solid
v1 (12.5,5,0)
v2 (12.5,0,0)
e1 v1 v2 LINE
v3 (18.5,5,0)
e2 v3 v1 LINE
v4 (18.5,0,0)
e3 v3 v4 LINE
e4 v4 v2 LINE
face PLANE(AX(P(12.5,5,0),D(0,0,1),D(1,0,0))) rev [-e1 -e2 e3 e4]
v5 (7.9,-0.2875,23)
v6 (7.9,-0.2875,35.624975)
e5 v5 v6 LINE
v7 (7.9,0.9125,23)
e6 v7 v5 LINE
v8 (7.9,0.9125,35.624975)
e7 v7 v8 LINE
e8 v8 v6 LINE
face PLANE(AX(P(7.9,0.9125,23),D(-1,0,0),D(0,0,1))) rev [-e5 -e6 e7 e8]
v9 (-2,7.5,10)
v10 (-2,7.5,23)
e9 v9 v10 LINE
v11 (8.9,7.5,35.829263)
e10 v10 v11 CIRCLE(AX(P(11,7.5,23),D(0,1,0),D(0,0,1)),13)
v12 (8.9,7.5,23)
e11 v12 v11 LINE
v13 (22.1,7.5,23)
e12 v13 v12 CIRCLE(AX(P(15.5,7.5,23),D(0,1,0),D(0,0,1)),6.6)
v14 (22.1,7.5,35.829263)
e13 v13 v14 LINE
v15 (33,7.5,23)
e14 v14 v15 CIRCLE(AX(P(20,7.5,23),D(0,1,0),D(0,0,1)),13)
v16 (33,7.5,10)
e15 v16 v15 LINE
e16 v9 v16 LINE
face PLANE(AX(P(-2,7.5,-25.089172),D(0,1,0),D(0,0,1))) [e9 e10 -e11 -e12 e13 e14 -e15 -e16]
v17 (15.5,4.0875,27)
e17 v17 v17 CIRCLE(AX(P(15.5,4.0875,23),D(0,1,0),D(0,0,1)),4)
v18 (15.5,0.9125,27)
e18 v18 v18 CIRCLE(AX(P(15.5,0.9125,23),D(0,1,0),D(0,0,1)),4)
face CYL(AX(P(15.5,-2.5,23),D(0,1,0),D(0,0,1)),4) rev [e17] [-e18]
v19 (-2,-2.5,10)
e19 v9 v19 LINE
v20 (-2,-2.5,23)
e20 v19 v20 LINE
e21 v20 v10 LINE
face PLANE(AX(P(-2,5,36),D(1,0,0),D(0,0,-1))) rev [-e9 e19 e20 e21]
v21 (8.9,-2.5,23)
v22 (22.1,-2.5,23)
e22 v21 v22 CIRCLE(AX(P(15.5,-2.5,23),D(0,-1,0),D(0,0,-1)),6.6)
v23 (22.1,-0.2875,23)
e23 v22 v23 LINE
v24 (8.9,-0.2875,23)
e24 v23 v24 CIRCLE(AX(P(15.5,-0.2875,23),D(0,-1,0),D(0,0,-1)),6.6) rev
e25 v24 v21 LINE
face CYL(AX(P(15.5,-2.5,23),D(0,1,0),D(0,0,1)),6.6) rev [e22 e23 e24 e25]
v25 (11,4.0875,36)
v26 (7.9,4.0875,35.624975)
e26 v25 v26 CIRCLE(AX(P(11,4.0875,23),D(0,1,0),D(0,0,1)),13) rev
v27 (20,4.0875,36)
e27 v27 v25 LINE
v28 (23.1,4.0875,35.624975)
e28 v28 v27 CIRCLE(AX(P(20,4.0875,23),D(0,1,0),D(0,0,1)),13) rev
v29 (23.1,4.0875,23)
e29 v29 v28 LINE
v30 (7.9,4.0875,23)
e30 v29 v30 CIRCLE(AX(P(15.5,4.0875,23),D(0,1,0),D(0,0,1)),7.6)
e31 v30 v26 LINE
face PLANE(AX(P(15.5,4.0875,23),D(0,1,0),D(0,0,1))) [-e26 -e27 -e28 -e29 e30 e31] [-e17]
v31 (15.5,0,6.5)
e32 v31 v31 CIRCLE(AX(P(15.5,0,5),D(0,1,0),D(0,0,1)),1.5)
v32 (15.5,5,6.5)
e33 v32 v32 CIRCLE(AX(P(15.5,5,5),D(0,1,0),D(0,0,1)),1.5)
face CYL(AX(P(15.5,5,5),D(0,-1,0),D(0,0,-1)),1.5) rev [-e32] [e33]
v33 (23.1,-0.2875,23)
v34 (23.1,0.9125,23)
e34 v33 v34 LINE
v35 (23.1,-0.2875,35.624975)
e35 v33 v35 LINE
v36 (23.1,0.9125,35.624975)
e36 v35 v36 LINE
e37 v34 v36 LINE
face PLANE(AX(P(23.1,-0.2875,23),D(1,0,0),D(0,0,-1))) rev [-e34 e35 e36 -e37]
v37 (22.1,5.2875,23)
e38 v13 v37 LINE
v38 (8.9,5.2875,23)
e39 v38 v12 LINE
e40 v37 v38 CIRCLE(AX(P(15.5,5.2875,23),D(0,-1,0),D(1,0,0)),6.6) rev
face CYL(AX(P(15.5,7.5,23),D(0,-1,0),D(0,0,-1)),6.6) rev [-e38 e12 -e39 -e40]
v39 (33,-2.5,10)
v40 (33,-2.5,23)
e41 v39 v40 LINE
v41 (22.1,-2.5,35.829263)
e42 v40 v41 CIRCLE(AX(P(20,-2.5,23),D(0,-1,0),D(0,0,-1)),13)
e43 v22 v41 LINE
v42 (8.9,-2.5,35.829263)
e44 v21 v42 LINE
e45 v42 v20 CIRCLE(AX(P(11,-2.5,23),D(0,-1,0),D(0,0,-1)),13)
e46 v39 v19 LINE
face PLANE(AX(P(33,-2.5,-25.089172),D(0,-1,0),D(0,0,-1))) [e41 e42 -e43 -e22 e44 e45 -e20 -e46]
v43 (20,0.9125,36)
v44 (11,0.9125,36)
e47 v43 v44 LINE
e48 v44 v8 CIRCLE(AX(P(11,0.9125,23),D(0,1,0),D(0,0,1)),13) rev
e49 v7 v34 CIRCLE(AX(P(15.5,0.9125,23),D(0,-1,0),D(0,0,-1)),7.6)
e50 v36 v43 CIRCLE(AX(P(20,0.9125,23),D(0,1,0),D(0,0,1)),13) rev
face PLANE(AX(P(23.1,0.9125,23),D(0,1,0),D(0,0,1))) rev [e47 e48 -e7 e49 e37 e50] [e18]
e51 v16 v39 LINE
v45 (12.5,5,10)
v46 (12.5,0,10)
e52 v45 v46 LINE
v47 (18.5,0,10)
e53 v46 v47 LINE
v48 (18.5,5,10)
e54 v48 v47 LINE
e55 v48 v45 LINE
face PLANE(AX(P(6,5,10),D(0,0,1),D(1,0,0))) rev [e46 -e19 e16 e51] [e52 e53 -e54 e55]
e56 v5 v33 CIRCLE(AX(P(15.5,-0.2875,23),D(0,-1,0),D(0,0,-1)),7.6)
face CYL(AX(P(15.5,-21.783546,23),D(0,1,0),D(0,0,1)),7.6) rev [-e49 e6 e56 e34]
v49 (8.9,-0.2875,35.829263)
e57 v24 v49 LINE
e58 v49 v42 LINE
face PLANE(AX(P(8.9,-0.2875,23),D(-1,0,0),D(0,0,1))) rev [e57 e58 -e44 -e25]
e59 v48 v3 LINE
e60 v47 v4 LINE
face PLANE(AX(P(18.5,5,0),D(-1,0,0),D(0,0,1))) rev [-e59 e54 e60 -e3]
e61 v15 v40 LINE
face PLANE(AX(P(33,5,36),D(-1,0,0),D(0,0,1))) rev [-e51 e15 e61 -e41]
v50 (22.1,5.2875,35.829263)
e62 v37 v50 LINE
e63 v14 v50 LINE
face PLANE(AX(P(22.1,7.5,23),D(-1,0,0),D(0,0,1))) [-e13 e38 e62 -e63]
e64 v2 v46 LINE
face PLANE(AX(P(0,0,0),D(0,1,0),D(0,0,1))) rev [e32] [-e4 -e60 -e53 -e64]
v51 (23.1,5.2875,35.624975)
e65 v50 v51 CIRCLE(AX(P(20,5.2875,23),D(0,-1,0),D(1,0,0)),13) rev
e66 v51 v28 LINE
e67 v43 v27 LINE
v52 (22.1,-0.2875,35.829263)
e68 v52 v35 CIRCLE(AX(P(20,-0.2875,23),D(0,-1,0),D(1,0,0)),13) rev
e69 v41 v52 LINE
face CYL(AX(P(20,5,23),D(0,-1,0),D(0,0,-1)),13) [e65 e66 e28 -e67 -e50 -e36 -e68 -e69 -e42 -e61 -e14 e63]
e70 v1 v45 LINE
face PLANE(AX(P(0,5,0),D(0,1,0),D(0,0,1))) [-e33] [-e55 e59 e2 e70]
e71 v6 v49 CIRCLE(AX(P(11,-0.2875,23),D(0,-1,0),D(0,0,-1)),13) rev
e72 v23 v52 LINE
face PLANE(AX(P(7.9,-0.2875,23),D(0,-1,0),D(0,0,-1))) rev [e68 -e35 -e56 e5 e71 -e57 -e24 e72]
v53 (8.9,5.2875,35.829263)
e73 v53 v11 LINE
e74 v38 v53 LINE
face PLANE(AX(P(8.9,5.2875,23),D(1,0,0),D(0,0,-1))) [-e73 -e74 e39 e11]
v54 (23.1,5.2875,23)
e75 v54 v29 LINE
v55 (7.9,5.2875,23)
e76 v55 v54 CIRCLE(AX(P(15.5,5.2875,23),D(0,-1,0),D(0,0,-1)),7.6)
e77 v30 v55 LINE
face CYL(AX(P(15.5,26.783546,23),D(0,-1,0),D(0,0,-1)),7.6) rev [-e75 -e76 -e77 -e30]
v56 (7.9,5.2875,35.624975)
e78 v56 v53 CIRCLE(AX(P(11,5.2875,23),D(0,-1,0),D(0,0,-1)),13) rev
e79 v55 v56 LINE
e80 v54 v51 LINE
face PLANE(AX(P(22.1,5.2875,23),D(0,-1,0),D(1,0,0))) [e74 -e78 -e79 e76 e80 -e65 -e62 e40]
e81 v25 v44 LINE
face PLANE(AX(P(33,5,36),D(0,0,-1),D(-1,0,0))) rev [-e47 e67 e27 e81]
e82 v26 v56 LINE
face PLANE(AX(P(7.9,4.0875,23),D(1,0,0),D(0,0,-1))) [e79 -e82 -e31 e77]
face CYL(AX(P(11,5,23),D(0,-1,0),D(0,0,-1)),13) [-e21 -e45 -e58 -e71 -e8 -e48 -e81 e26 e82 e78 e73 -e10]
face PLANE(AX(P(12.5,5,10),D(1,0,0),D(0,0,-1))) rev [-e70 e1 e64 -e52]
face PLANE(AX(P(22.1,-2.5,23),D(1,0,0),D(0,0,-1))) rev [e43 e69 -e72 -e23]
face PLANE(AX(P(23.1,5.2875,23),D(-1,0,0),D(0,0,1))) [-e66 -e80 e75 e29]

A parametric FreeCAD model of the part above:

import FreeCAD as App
import Part
import Sketcher
from FreeCAD import Vector
Q = App.Units.Quantity


def edges_at(feature, points):
    """Names of the edges that pass closest to the given points."""
    edges = feature.Shape.Edges
    near = lambda p: min(range(len(edges)), key=lambda i: edges[i].distToShape(Part.Vertex(*p))[0])
    return sorted({f"Edge{near(p) + 1}" for p in points})


def add_polygon(sketch, points):
    """Adds a closed chain of lines whose ends are joined by coincident constraints."""
    first, n = sketch.GeometryCount, len(points)
    for a, b in zip(points, points[1:] + points[:1]):
        sketch.addGeometry(Part.LineSegment(App.Vector(*a, 0), App.Vector(*b, 0)), False)
    for i in range(n):
        sketch.addConstraint(Sketcher.Constraint("Coincident", first + i, 2, first + (i + 1) % n, 1))

doc = App.newDocument("Part")
body = doc.addObject("PartDesign::Body", "Body")

sketch1 = body.newObject("Sketcher::SketchObject", "Sketch")
sketch1.AttachmentSupport = (doc.getObject("XZ_Plane"), [""])
sketch1.MapMode = "FlatFace"
add_polygon(sketch1, [(12.5, 10), (-2, 10), (-2, 36), (33, 36), (33, 10), (18.5, 10), (18.5, 0), (12.5, 0)])
sketch1.addGeometry(Part.Circle(Vector(15.5, 5, 0), Vector(0, 0, 1), 1.5), False)
sketch1.addConstraint([
    Sketcher.Constraint("Horizontal", 0),
    Sketcher.Constraint("Vertical", 1),
    Sketcher.Constraint("Horizontal", 2),
    Sketcher.Constraint("Vertical", 3),
    Sketcher.Constraint("Horizontal", 4),
    Sketcher.Constraint("Vertical", 5),
    Sketcher.Constraint("Horizontal", 6),
    Sketcher.Constraint("Vertical", 7),
    Sketcher.Constraint("PointOnObject", 5, 2, -1),
    Sketcher.Constraint("Horizontal", 0, 2, 3, 2),
    Sketcher.Constraint("Equal", 0, 4),
    Sketcher.Constraint("Diameter", 8, Q("3 mm")),
    Sketcher.Constraint("DistanceX", 2, 1, 2, 2, Q("35 mm")),
    Sketcher.Constraint("DistanceX", 6, 2, 6, 1, Q("6 mm")),
    Sketcher.Constraint("DistanceY", 1, 1, 1, 2, Q("26 mm")),
    Sketcher.Constraint("DistanceY", 5, 2, 5, 1, Q("10 mm")),
    Sketcher.Constraint("DistanceY", -1, 1, 8, 3, Q("5 mm")),
    Sketcher.Constraint("DistanceX", 0, 2, -1, 1, Q("2 mm")),
    Sketcher.Constraint("DistanceX", 8, 3, 4, 2, Q("3 mm")),
])
pad1 = body.newObject("PartDesign::Pad", "Pad")
pad1.Profile = sketch1
pad1.Length = 5
pad1.Reversed = True

sketch2 = body.newObject("Sketcher::SketchObject", "Sketch001")
sketch2.AttachmentSupport = (doc.getObject("XY_Plane"), [""])
sketch2.MapMode = "FlatFace"
sketch2.AttachmentOffset = App.Placement(Vector(0, 0, 36), App.Rotation())
add_polygon(sketch2, [(-2, 7.5), (-2, 5), (33, 5), (33, 7.5)])
add_polygon(sketch2, [(-2, 0), (-2, -2.5), (33, -2.5), (33, 0)])
sketch2.addConstraint([
    Sketcher.Constraint("Vertical", 0),
    Sketcher.Constraint("Horizontal", 1),
    Sketcher.Constraint("Vertical", 2),
    Sketcher.Constraint("Horizontal", 3),
    Sketcher.Constraint("Vertical", 4),
    Sketcher.Constraint("Horizontal", 5),
    Sketcher.Constraint("Vertical", 6),
    Sketcher.Constraint("Horizontal", 7),
    Sketcher.Constraint("PointOnObject", 6, 2, -1),
    Sketcher.Constraint("Vertical", 3, 2, 4, 2),
    Sketcher.Constraint("Vertical", 2, 2, 5, 2),
    Sketcher.Constraint("Equal", 2, 4),
    Sketcher.Constraint("DistanceX", 1, 1, 1, 2, Q("35 mm")),
    Sketcher.Constraint("DistanceY", 0, 2, 0, 1, Q("2.5 mm")),
    Sketcher.Constraint("DistanceX", 0, 2, -1, 1, Q("2 mm")),
    Sketcher.Constraint("DistanceY", -1, 1, 0, 2, Q("5 mm")),
])
pad2 = body.newObject("PartDesign::Pad", "Pad001")
pad2.Profile = sketch2
pad2.Length = 26
pad2.Reversed = True
doc.recompute()

fillet = body.newObject("PartDesign::Fillet", "Fillet")
fillet.Base = (pad2, edges_at(pad2, [(33, 2.5, 36), (-2, 2.5, 36)]))
fillet.Radius = 13

sketch3 = body.newObject("Sketcher::SketchObject", "Sketch002")
sketch3.AttachmentSupport = (doc.getObject("XY_Plane"), [""])
sketch3.MapMode = "FlatFace"
sketch3.AttachmentOffset = App.Placement(Vector(0, 0, 36), App.Rotation())
add_polygon(sketch3, [(22.1, 7.5), (22.1, 5.3), (23.1, 5.3), (23.1, 4.1), (7.9, 4.1), (7.9, 5.3), (8.9, 5.3), (8.9, 7.5)])
sketch3.addConstraint([
    Sketcher.Constraint("Vertical", 0),
    Sketcher.Constraint("Horizontal", 1),
    Sketcher.Constraint("Vertical", 2),
    Sketcher.Constraint("Horizontal", 3),
    Sketcher.Constraint("Vertical", 4),
    Sketcher.Constraint("Horizontal", 5),
    Sketcher.Constraint("Vertical", 6),
    Sketcher.Constraint("Horizontal", 7),
    Sketcher.Constraint("Horizontal", 1, 2, 4, 2),
    Sketcher.Constraint("Equal", 1, 5),
    Sketcher.Constraint("DistanceX", 1, 1, 1, 2, Q("1 mm")),
    Sketcher.Constraint("DistanceX", 3, 2, 3, 1, Q("15.2 mm")),
    Sketcher.Constraint("DistanceY", 2, 2, 2, 1, Q("1.2 mm")),
    Sketcher.Constraint("DistanceX", -1, 1, 0, 2, Q("22.1 mm")),
    Sketcher.Constraint("DistanceY", -1, 1, 6, 2, Q("7.5 mm")),
    Sketcher.Constraint("DistanceY", 0, 2, 0, 1, Q("2.2125 mm")),
])
pocket1 = body.newObject("PartDesign::Pocket", "Pocket")
pocket1.Profile = sketch3
pocket1.Length = 13

sketch4 = body.newObject("Sketcher::SketchObject", "Sketch003")
sketch4.AttachmentSupport = (doc.getObject("XZ_Plane"), [""])
sketch4.MapMode = "FlatFace"
sketch4.AttachmentOffset = App.Placement(Vector(0, 0, -4.0875), App.Rotation())
sketch4.addGeometry(Part.Circle(Vector(16, 23, 0), Vector(0, 0, 1), 8), False)
sketch4.addConstraint([
    Sketcher.Constraint("Diameter", 0, Q("15.2 mm")),
    Sketcher.Constraint("DistanceY", -1, 1, 0, 3, Q("23 mm")),
    Sketcher.Constraint("DistanceX", -1, 1, 0, 3, Q("15.5 mm")),
])
pocket2 = body.newObject("PartDesign::Pocket", "Pocket001")
pocket2.Profile = sketch4
pocket2.Length = 1.2

sketch5 = body.newObject("Sketcher::SketchObject", "Sketch004")
sketch5.AttachmentSupport = (doc.getObject("XZ_Plane"), [""])
sketch5.MapMode = "FlatFace"
sketch5.AttachmentOffset = App.Placement(Vector(0, 0, -4.0875), App.Rotation())
sketch5.addGeometry(Part.Circle(Vector(16, 23, 0), Vector(0, 0, 1), 7), False)
sketch5.addConstraint([
    Sketcher.Constraint("Diameter", 0, Q("13.2 mm")),
    Sketcher.Constraint("DistanceY", -1, 1, 0, 3, Q("23 mm")),
    Sketcher.Constraint("DistanceX", -1, 1, 0, 3, Q("15.5 mm")),
])
pocket3 = body.newObject("PartDesign::Pocket", "Pocket002")
pocket3.Profile = sketch5
pocket3.Type = "ThroughAll"
doc.recompute()

datumplane = body.newObject("PartDesign::Plane", "DatumPlane")
datumplane.AttachmentSupport = (doc.getObject("XZ_Plane"), [""])
datumplane.MapMode = "FlatFace"
datumplane.AttachmentOffset = App.Placement(Vector(0, 0, -2.5), App.Rotation())
mirrored = body.newObject("PartDesign::Mirrored", "Mirrored")
mirrored.Originals = [pocket1]
mirrored.MirrorPlane = (datumplane, [""])
body.Tip = mirrored

sketch6 = body.newObject("Sketcher::SketchObject", "Sketch005")
sketch6.AttachmentSupport = (doc.getObject("XZ_Plane"), [""])
sketch6.MapMode = "FlatFace"
sketch6.AttachmentOffset = App.Placement(Vector(0, 0, 0.2875), App.Rotation())
sketch6.addGeometry(Part.Circle(Vector(16, 23, 0), Vector(0, 0, 1), 8), False)
sketch6.addConstraint([
    Sketcher.Constraint("Diameter", 0, Q("15.2 mm")),
    Sketcher.Constraint("DistanceY", -1, 1, 0, 3, Q("23 mm")),
    Sketcher.Constraint("DistanceX", -1, 1, 0, 3, Q("15.5 mm")),
])
pocket4 = body.newObject("PartDesign::Pocket", "Pocket003")
pocket4.Profile = sketch6
pocket4.Length = 1.2

sketch7 = body.newObject("Sketcher::SketchObject", "Sketch006")
sketch7.AttachmentSupport = (doc.getObject("XZ_Plane"), [""])
sketch7.MapMode = "FlatFace"
sketch7.AttachmentOffset = App.Placement(Vector(0, 0, -0.9125), App.Rotation())
sketch7.addGeometry(Part.Circle(Vector(16, 23, 0), Vector(0, 0, 1), 7), False)
sketch7.addConstraint([
    Sketcher.Constraint("Diameter", 0, Q("13.2 mm")),
    Sketcher.Constraint("DistanceY", -1, 1, 0, 3, Q("23 mm")),
    Sketcher.Constraint("DistanceX", -1, 1, 0, 3, Q("15.5 mm")),
])
pocket5 = body.newObject("PartDesign::Pocket", "Pocket004")
pocket5.Profile = sketch7
pocket5.Type = "ThroughAll"
pocket5.Reversed = True

sketch8 = body.newObject("Sketcher::SketchObject", "Sketch007")
sketch8.AttachmentSupport = (doc.getObject("XZ_Plane"), [""])
sketch8.MapMode = "FlatFace"
sketch8.AttachmentOffset = App.Placement(Vector(0, 0, -4.0875), App.Rotation())
sketch8.addGeometry(Part.Circle(Vector(15.5, 23, 0), Vector(0, 0, 1), 4), False)
sketch8.addConstraint([
    Sketcher.Constraint("Diameter", 0, Q("8 mm")),
    Sketcher.Constraint("DistanceY", -1, 1, 0, 3, Q("23 mm")),
    Sketcher.Constraint("DistanceX", -1, 1, 0, 3, Q("15.5 mm")),
])
pocket6 = body.newObject("PartDesign::Pocket", "Pocket005")
pocket6.Profile = sketch8
pocket6.Type = "ThroughAll"
pocket6.Reversed = True

doc.recompute()
